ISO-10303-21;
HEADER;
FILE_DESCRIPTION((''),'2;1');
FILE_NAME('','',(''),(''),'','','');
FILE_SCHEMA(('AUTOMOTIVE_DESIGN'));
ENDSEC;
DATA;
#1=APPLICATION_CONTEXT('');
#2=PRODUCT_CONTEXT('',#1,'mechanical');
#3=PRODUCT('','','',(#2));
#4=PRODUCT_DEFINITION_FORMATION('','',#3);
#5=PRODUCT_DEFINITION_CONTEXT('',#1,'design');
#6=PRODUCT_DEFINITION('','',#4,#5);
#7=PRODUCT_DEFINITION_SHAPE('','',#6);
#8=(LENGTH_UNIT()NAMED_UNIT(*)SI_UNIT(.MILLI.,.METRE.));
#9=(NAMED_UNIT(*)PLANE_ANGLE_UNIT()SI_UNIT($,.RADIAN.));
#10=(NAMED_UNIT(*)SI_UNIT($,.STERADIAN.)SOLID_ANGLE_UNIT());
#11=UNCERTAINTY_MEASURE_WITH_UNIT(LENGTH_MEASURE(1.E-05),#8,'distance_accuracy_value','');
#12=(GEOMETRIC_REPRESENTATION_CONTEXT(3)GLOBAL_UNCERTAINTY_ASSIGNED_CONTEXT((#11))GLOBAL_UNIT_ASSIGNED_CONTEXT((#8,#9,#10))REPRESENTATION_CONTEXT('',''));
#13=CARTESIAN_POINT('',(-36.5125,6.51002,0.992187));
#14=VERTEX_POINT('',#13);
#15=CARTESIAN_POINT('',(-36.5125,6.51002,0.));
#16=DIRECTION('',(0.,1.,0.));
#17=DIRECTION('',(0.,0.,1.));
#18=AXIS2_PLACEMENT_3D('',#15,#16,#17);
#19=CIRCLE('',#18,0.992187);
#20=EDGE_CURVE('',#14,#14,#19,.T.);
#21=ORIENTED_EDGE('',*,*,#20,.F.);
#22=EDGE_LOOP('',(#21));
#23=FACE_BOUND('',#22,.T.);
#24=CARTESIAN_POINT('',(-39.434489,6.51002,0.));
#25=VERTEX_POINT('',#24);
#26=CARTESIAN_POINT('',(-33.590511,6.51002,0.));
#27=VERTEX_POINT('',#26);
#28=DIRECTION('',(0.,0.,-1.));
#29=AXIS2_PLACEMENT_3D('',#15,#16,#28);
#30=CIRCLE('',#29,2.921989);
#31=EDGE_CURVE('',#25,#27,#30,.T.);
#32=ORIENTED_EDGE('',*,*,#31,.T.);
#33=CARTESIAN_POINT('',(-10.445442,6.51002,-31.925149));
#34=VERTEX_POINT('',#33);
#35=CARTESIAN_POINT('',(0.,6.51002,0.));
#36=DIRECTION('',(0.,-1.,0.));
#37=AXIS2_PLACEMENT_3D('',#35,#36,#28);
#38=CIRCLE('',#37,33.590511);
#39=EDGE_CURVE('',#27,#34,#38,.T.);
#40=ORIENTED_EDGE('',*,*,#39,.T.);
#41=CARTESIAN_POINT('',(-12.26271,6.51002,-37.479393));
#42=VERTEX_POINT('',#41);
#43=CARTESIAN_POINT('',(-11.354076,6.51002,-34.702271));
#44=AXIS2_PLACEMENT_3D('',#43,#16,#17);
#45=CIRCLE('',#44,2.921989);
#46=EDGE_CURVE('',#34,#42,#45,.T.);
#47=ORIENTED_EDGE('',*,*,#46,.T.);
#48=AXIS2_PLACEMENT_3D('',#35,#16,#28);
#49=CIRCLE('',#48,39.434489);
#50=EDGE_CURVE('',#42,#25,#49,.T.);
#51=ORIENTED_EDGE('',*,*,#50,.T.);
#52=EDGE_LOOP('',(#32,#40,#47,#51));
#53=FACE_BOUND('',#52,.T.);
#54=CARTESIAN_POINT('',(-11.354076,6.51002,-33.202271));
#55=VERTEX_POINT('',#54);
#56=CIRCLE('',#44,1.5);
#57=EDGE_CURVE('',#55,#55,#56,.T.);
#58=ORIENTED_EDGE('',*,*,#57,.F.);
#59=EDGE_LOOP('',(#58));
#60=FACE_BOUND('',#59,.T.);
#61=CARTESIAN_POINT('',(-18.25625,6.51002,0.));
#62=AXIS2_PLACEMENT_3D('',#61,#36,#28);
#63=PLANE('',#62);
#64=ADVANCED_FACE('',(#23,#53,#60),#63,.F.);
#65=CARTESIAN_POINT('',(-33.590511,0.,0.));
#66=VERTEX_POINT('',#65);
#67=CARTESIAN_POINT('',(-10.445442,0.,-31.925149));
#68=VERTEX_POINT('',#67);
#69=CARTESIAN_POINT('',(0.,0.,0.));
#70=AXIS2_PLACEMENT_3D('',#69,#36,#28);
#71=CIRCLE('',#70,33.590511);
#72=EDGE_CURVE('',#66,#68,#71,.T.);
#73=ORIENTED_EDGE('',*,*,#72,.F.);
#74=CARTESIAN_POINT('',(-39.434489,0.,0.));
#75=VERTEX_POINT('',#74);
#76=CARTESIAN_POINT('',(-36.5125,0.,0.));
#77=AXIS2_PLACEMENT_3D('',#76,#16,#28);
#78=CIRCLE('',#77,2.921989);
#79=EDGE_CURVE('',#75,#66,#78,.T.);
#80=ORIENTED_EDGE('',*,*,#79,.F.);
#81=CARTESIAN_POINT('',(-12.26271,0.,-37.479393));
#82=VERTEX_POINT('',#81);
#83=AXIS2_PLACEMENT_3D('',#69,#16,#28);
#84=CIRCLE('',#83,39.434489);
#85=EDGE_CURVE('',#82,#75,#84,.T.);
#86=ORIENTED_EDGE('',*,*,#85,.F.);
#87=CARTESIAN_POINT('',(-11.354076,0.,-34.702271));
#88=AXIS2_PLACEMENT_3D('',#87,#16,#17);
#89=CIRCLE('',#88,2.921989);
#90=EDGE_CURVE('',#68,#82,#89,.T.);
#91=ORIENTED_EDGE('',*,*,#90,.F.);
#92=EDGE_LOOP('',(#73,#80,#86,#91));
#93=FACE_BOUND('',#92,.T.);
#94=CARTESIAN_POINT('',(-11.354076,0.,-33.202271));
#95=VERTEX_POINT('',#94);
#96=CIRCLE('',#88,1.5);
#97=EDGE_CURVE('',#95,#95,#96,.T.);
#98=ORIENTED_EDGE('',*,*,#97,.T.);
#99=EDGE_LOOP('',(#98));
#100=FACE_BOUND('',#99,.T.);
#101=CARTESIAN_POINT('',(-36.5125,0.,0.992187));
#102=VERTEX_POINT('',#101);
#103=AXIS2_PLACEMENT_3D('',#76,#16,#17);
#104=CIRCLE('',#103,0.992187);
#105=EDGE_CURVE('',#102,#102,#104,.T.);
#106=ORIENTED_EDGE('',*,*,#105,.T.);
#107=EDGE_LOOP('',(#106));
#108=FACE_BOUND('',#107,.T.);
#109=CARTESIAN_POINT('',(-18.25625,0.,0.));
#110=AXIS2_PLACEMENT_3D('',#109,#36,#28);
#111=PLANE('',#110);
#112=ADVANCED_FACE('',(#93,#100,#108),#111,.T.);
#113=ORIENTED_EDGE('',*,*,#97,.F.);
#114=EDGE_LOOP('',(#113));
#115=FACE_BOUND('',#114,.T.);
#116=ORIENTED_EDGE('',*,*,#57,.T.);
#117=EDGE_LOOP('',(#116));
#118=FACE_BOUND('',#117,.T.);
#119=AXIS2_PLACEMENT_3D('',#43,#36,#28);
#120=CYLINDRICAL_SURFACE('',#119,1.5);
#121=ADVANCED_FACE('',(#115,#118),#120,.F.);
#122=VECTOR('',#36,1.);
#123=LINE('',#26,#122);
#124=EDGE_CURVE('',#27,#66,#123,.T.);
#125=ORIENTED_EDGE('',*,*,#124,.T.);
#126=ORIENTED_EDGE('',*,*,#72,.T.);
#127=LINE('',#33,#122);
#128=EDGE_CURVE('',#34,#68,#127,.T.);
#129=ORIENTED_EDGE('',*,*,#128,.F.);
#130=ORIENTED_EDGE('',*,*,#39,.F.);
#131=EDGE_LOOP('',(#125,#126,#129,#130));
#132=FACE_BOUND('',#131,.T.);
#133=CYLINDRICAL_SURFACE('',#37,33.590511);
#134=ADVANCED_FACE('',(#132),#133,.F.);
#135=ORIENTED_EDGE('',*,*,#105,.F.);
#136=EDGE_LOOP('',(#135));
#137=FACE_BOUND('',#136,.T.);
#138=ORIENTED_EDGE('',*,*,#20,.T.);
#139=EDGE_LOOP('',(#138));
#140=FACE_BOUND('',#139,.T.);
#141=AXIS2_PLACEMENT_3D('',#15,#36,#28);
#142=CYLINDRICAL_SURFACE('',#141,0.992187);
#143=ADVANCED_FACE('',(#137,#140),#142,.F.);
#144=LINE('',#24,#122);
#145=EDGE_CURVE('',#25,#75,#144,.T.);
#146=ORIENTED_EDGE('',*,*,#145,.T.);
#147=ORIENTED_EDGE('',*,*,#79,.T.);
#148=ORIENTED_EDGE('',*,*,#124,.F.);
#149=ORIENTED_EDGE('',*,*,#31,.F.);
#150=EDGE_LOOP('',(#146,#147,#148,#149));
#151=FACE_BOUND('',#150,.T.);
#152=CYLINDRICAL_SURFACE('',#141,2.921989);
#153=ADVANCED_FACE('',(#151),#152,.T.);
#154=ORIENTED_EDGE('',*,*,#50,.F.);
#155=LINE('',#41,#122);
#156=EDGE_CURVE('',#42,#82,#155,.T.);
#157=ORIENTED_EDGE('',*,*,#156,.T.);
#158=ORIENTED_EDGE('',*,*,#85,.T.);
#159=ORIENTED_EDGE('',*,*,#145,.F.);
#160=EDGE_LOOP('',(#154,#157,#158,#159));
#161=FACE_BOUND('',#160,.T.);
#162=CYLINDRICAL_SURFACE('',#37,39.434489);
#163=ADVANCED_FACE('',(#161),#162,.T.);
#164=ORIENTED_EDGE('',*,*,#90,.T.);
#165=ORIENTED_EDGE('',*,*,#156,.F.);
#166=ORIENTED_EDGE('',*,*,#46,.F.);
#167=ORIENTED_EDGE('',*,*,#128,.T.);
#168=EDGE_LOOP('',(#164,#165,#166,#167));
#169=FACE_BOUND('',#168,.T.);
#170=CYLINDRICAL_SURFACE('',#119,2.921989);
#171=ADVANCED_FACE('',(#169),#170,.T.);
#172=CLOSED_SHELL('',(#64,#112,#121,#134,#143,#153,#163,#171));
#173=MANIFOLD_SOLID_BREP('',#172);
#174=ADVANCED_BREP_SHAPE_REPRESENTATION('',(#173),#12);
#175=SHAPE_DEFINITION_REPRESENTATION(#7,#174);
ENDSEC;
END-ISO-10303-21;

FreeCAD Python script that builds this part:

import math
import FreeCAD as App
import Part
import Sketcher

V = App.Vector

doc = App.newDocument("Part")
body = doc.addObject("PartDesign::Body", "Body")

sketch1 = body.newObject("Sketcher::SketchObject", "Sketch")
sketch1.AttachmentSupport = (doc.getObject("XZ_Plane"), [""])
sketch1.MapMode = "FlatFace"
sketch1.addGeometry([
    Part.ArcOfCircle(Part.Circle(V(0, 0, 0), V(0, 0, 1), 33.6), math.radians(-180), math.radians(-108)),
    Part.ArcOfCircle(Part.Circle(V(-11.4, -34.7, 0), V(0, 0, 1), 2.9), math.radians(-108), math.radians(72)),
    Part.ArcOfCircle(Part.Circle(V(0, 0, 0), V(0, 0, 1), 39.4), math.radians(180), math.radians(252)),
    Part.ArcOfCircle(Part.Circle(V(-36.5, 0, 0), V(0, 0, 1), 2.9), math.radians(0), math.radians(180)),
    Part.Circle(V(-36.5, 0, 0), V(0, 0, 1), 1),
    Part.Circle(V(-11.4, -34.7, 0), V(0, 0, 1), 1.5),
], False)
sketch1.addConstraint([
    Sketcher.Constraint("Tangent", 0, 2, 1, 2),
    Sketcher.Constraint("Tangent", 1, 1, 2, 2),
    Sketcher.Constraint("Tangent", 2, 1, 3, 2),
    Sketcher.Constraint("Tangent", 3, 1, 0, 1),
    Sketcher.Constraint("Coincident", 0, 3, -1, 1),
    Sketcher.Constraint("Coincident", 2, 3, -1, 1),
    Sketcher.Constraint("Coincident", 4, 3, 3, 3),
    Sketcher.Constraint("Coincident", 5, 3, 1, 3),
    Sketcher.Constraint("PointOnObject", 3, 3, -1),
    Sketcher.Constraint("Diameter", 5, 3.0),
    Sketcher.Constraint("Radius", 0, 33.590511),
    Sketcher.Constraint("Radius", 1, 2.921989),
    Sketcher.Constraint("Diameter", 4, 1.984375),
    Sketcher.Constraint("DistanceY", 1, 3, -1, 1, 34.702271),
])
pad1 = body.newObject("PartDesign::Pad", "Pad")
pad1.Profile = sketch1
pad1.Length = 6.51002
pad1.Reversed = True

doc.recompute()
